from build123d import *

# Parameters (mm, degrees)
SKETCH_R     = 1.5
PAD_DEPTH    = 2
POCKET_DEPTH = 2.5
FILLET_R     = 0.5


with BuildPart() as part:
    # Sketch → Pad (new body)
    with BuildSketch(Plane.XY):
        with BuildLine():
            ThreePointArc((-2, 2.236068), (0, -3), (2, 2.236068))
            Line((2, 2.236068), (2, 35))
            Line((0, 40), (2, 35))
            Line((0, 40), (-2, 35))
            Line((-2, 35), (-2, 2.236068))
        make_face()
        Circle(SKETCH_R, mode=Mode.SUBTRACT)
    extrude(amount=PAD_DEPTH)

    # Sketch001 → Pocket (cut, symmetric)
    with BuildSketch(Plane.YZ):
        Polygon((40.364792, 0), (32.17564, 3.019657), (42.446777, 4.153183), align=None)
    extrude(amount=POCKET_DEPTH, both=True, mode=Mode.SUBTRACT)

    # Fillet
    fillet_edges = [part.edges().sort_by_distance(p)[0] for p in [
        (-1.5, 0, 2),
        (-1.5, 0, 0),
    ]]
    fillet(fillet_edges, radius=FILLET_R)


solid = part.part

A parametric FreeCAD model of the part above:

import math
import FreeCAD as App
import Part
import Sketcher

V = App.Vector


def edges_at(feature, points):
    """Names of the edges that pass closest to the given points."""
    edges = feature.Shape.Edges
    near = lambda p: min(range(len(edges)), key=lambda i: edges[i].distToShape(Part.Vertex(*p))[0])
    return sorted({f"Edge{near(p) + 1}" for p in points})

doc = App.newDocument("Part")
params = doc.addObject("Spreadsheet::Sheet", "Params")
for row, (alias, value) in enumerate([
    ("sketch1_diameter", "3 mm"),
    ("sketch1_radius", "3 mm"),
    ("pad1_length", "2 mm"),
    ("pocket1_length", "5 mm"),
    ("fillet_radius", "0.5 mm"),
], start=1):
    params.set(f"A{row}", alias)
    params.set(f"B{row}", "=" + value)
    params.setAlias(f"B{row}", alias)

body = doc.addObject("PartDesign::Body", "Body")

# Sketch on XY plane
sketch1 = body.newObject("Sketcher::SketchObject", "Sketch")
sketch1.AttachmentSupport = (doc.getObject("XY_Plane"), [""])
sketch1.MapMode = "FlatFace"
sketch1.addGeometry([
    Part.ArcOfCircle(Part.Circle(V(0, 0, 0), V(0, 0, 1), 3), math.radians(132), math.radians(408)),  # 0
    Part.LineSegment(V(2, 2.2, 0), V(2, 35, 0)),  # 1
    Part.LineSegment(V(2, 35, 0), V(0, 40, 0)),  # 2
    Part.LineSegment(V(0, 40, 0), V(-2, 35, 0)),  # 3
    Part.LineSegment(V(-2, 35, 0), V(-2, 2.2, 0)),  # 4
    Part.Circle(V(0, 0, 0), V(0, 0, 1), 1.5),  # 5
], False)
sketch1.addConstraint([
    Sketcher.Constraint("Coincident", 0, 2, 1, 1),
    Sketcher.Constraint("Coincident", 1, 2, 2, 1),
    Sketcher.Constraint("Coincident", 2, 2, 3, 1),
    Sketcher.Constraint("Coincident", 3, 2, 4, 1),
    Sketcher.Constraint("Coincident", 4, 2, 0, 1),
    Sketcher.Constraint("Vertical", 1),
    Sketcher.Constraint("Vertical", 4),
    Sketcher.Constraint("Coincident", 0, 3, -1, 1),
    Sketcher.Constraint("Coincident", 5, 3, -1, 1),
    Sketcher.Constraint("Symmetric", 1, 2, 3, 2, -2),
    Sketcher.Constraint("PointOnObject", 2, 2, -2),
    Sketcher.Constraint("Diameter", 5, 3.0),
    Sketcher.Constraint("Radius", 0, 3.0),
    Sketcher.Constraint("DistanceX", -1, 1, 0, 2, 2.0),
    Sketcher.Constraint("DistanceY", -1, 1, 1, 2, 35.0),
    Sketcher.Constraint("DistanceY", -1, 1, 2, 2, 40.0),
])
sketch1.setExpression("Constraints[11]", "Params.sketch1_diameter")
sketch1.setExpression("Constraints[12]", "Params.sketch1_radius")
pad1 = body.newObject("PartDesign::Pad", "Pad")
pad1.Profile = sketch1
pad1.setExpression("Length", "Params.pad1_length")

# Sketch on YZ plane
sketch2 = body.newObject("Sketcher::SketchObject", "Sketch001")
sketch2.AttachmentSupport = (doc.getObject("YZ_Plane"), [""])
sketch2.MapMode = "FlatFace"
sketch2.addGeometry([
    Part.LineSegment(V(32.2, 3, 0), V(40.4, 0, 0)),
    Part.LineSegment(V(40.4, 0, 0), V(42.4, 4.2, 0)),
    Part.LineSegment(V(42.4, 4.2, 0), V(32.2, 3, 0)),
], False)
sketch2.addConstraint([
    Sketcher.Constraint("Coincident", 0, 2, 1, 1),
    Sketcher.Constraint("Coincident", 1, 2, 2, 1),
    Sketcher.Constraint("Coincident", 2, 2, 0, 1),
    Sketcher.Constraint("PointOnObject", 0, 2, -1),
    Sketcher.Constraint("DistanceX", -1, 1, 2, 2, 32.17564),
    Sketcher.Constraint("Distance", 0, 8.728146),
    Sketcher.Constraint("Distance", 1, 4.645814),
    Sketcher.Constraint("Distance", 2, 10.333496),
    Sketcher.Constraint("DistanceX", -1, 1, 0, 2, 40.364792),
])
pocket1 = body.newObject("PartDesign::Pocket", "Pocket")
pocket1.Profile = sketch2
pocket1.setExpression("Length", "Params.pocket1_length")
pocket1.Midplane = True
doc.recompute()

fillet = body.newObject("PartDesign::Fillet", "Fillet")
fillet.Base = (pocket1, edges_at(pocket1, [(-1.5, 0, 2), (-1.5, 0, 0)]))
fillet.setExpression("Radius", "Params.fillet_radius")

doc.recompute()
